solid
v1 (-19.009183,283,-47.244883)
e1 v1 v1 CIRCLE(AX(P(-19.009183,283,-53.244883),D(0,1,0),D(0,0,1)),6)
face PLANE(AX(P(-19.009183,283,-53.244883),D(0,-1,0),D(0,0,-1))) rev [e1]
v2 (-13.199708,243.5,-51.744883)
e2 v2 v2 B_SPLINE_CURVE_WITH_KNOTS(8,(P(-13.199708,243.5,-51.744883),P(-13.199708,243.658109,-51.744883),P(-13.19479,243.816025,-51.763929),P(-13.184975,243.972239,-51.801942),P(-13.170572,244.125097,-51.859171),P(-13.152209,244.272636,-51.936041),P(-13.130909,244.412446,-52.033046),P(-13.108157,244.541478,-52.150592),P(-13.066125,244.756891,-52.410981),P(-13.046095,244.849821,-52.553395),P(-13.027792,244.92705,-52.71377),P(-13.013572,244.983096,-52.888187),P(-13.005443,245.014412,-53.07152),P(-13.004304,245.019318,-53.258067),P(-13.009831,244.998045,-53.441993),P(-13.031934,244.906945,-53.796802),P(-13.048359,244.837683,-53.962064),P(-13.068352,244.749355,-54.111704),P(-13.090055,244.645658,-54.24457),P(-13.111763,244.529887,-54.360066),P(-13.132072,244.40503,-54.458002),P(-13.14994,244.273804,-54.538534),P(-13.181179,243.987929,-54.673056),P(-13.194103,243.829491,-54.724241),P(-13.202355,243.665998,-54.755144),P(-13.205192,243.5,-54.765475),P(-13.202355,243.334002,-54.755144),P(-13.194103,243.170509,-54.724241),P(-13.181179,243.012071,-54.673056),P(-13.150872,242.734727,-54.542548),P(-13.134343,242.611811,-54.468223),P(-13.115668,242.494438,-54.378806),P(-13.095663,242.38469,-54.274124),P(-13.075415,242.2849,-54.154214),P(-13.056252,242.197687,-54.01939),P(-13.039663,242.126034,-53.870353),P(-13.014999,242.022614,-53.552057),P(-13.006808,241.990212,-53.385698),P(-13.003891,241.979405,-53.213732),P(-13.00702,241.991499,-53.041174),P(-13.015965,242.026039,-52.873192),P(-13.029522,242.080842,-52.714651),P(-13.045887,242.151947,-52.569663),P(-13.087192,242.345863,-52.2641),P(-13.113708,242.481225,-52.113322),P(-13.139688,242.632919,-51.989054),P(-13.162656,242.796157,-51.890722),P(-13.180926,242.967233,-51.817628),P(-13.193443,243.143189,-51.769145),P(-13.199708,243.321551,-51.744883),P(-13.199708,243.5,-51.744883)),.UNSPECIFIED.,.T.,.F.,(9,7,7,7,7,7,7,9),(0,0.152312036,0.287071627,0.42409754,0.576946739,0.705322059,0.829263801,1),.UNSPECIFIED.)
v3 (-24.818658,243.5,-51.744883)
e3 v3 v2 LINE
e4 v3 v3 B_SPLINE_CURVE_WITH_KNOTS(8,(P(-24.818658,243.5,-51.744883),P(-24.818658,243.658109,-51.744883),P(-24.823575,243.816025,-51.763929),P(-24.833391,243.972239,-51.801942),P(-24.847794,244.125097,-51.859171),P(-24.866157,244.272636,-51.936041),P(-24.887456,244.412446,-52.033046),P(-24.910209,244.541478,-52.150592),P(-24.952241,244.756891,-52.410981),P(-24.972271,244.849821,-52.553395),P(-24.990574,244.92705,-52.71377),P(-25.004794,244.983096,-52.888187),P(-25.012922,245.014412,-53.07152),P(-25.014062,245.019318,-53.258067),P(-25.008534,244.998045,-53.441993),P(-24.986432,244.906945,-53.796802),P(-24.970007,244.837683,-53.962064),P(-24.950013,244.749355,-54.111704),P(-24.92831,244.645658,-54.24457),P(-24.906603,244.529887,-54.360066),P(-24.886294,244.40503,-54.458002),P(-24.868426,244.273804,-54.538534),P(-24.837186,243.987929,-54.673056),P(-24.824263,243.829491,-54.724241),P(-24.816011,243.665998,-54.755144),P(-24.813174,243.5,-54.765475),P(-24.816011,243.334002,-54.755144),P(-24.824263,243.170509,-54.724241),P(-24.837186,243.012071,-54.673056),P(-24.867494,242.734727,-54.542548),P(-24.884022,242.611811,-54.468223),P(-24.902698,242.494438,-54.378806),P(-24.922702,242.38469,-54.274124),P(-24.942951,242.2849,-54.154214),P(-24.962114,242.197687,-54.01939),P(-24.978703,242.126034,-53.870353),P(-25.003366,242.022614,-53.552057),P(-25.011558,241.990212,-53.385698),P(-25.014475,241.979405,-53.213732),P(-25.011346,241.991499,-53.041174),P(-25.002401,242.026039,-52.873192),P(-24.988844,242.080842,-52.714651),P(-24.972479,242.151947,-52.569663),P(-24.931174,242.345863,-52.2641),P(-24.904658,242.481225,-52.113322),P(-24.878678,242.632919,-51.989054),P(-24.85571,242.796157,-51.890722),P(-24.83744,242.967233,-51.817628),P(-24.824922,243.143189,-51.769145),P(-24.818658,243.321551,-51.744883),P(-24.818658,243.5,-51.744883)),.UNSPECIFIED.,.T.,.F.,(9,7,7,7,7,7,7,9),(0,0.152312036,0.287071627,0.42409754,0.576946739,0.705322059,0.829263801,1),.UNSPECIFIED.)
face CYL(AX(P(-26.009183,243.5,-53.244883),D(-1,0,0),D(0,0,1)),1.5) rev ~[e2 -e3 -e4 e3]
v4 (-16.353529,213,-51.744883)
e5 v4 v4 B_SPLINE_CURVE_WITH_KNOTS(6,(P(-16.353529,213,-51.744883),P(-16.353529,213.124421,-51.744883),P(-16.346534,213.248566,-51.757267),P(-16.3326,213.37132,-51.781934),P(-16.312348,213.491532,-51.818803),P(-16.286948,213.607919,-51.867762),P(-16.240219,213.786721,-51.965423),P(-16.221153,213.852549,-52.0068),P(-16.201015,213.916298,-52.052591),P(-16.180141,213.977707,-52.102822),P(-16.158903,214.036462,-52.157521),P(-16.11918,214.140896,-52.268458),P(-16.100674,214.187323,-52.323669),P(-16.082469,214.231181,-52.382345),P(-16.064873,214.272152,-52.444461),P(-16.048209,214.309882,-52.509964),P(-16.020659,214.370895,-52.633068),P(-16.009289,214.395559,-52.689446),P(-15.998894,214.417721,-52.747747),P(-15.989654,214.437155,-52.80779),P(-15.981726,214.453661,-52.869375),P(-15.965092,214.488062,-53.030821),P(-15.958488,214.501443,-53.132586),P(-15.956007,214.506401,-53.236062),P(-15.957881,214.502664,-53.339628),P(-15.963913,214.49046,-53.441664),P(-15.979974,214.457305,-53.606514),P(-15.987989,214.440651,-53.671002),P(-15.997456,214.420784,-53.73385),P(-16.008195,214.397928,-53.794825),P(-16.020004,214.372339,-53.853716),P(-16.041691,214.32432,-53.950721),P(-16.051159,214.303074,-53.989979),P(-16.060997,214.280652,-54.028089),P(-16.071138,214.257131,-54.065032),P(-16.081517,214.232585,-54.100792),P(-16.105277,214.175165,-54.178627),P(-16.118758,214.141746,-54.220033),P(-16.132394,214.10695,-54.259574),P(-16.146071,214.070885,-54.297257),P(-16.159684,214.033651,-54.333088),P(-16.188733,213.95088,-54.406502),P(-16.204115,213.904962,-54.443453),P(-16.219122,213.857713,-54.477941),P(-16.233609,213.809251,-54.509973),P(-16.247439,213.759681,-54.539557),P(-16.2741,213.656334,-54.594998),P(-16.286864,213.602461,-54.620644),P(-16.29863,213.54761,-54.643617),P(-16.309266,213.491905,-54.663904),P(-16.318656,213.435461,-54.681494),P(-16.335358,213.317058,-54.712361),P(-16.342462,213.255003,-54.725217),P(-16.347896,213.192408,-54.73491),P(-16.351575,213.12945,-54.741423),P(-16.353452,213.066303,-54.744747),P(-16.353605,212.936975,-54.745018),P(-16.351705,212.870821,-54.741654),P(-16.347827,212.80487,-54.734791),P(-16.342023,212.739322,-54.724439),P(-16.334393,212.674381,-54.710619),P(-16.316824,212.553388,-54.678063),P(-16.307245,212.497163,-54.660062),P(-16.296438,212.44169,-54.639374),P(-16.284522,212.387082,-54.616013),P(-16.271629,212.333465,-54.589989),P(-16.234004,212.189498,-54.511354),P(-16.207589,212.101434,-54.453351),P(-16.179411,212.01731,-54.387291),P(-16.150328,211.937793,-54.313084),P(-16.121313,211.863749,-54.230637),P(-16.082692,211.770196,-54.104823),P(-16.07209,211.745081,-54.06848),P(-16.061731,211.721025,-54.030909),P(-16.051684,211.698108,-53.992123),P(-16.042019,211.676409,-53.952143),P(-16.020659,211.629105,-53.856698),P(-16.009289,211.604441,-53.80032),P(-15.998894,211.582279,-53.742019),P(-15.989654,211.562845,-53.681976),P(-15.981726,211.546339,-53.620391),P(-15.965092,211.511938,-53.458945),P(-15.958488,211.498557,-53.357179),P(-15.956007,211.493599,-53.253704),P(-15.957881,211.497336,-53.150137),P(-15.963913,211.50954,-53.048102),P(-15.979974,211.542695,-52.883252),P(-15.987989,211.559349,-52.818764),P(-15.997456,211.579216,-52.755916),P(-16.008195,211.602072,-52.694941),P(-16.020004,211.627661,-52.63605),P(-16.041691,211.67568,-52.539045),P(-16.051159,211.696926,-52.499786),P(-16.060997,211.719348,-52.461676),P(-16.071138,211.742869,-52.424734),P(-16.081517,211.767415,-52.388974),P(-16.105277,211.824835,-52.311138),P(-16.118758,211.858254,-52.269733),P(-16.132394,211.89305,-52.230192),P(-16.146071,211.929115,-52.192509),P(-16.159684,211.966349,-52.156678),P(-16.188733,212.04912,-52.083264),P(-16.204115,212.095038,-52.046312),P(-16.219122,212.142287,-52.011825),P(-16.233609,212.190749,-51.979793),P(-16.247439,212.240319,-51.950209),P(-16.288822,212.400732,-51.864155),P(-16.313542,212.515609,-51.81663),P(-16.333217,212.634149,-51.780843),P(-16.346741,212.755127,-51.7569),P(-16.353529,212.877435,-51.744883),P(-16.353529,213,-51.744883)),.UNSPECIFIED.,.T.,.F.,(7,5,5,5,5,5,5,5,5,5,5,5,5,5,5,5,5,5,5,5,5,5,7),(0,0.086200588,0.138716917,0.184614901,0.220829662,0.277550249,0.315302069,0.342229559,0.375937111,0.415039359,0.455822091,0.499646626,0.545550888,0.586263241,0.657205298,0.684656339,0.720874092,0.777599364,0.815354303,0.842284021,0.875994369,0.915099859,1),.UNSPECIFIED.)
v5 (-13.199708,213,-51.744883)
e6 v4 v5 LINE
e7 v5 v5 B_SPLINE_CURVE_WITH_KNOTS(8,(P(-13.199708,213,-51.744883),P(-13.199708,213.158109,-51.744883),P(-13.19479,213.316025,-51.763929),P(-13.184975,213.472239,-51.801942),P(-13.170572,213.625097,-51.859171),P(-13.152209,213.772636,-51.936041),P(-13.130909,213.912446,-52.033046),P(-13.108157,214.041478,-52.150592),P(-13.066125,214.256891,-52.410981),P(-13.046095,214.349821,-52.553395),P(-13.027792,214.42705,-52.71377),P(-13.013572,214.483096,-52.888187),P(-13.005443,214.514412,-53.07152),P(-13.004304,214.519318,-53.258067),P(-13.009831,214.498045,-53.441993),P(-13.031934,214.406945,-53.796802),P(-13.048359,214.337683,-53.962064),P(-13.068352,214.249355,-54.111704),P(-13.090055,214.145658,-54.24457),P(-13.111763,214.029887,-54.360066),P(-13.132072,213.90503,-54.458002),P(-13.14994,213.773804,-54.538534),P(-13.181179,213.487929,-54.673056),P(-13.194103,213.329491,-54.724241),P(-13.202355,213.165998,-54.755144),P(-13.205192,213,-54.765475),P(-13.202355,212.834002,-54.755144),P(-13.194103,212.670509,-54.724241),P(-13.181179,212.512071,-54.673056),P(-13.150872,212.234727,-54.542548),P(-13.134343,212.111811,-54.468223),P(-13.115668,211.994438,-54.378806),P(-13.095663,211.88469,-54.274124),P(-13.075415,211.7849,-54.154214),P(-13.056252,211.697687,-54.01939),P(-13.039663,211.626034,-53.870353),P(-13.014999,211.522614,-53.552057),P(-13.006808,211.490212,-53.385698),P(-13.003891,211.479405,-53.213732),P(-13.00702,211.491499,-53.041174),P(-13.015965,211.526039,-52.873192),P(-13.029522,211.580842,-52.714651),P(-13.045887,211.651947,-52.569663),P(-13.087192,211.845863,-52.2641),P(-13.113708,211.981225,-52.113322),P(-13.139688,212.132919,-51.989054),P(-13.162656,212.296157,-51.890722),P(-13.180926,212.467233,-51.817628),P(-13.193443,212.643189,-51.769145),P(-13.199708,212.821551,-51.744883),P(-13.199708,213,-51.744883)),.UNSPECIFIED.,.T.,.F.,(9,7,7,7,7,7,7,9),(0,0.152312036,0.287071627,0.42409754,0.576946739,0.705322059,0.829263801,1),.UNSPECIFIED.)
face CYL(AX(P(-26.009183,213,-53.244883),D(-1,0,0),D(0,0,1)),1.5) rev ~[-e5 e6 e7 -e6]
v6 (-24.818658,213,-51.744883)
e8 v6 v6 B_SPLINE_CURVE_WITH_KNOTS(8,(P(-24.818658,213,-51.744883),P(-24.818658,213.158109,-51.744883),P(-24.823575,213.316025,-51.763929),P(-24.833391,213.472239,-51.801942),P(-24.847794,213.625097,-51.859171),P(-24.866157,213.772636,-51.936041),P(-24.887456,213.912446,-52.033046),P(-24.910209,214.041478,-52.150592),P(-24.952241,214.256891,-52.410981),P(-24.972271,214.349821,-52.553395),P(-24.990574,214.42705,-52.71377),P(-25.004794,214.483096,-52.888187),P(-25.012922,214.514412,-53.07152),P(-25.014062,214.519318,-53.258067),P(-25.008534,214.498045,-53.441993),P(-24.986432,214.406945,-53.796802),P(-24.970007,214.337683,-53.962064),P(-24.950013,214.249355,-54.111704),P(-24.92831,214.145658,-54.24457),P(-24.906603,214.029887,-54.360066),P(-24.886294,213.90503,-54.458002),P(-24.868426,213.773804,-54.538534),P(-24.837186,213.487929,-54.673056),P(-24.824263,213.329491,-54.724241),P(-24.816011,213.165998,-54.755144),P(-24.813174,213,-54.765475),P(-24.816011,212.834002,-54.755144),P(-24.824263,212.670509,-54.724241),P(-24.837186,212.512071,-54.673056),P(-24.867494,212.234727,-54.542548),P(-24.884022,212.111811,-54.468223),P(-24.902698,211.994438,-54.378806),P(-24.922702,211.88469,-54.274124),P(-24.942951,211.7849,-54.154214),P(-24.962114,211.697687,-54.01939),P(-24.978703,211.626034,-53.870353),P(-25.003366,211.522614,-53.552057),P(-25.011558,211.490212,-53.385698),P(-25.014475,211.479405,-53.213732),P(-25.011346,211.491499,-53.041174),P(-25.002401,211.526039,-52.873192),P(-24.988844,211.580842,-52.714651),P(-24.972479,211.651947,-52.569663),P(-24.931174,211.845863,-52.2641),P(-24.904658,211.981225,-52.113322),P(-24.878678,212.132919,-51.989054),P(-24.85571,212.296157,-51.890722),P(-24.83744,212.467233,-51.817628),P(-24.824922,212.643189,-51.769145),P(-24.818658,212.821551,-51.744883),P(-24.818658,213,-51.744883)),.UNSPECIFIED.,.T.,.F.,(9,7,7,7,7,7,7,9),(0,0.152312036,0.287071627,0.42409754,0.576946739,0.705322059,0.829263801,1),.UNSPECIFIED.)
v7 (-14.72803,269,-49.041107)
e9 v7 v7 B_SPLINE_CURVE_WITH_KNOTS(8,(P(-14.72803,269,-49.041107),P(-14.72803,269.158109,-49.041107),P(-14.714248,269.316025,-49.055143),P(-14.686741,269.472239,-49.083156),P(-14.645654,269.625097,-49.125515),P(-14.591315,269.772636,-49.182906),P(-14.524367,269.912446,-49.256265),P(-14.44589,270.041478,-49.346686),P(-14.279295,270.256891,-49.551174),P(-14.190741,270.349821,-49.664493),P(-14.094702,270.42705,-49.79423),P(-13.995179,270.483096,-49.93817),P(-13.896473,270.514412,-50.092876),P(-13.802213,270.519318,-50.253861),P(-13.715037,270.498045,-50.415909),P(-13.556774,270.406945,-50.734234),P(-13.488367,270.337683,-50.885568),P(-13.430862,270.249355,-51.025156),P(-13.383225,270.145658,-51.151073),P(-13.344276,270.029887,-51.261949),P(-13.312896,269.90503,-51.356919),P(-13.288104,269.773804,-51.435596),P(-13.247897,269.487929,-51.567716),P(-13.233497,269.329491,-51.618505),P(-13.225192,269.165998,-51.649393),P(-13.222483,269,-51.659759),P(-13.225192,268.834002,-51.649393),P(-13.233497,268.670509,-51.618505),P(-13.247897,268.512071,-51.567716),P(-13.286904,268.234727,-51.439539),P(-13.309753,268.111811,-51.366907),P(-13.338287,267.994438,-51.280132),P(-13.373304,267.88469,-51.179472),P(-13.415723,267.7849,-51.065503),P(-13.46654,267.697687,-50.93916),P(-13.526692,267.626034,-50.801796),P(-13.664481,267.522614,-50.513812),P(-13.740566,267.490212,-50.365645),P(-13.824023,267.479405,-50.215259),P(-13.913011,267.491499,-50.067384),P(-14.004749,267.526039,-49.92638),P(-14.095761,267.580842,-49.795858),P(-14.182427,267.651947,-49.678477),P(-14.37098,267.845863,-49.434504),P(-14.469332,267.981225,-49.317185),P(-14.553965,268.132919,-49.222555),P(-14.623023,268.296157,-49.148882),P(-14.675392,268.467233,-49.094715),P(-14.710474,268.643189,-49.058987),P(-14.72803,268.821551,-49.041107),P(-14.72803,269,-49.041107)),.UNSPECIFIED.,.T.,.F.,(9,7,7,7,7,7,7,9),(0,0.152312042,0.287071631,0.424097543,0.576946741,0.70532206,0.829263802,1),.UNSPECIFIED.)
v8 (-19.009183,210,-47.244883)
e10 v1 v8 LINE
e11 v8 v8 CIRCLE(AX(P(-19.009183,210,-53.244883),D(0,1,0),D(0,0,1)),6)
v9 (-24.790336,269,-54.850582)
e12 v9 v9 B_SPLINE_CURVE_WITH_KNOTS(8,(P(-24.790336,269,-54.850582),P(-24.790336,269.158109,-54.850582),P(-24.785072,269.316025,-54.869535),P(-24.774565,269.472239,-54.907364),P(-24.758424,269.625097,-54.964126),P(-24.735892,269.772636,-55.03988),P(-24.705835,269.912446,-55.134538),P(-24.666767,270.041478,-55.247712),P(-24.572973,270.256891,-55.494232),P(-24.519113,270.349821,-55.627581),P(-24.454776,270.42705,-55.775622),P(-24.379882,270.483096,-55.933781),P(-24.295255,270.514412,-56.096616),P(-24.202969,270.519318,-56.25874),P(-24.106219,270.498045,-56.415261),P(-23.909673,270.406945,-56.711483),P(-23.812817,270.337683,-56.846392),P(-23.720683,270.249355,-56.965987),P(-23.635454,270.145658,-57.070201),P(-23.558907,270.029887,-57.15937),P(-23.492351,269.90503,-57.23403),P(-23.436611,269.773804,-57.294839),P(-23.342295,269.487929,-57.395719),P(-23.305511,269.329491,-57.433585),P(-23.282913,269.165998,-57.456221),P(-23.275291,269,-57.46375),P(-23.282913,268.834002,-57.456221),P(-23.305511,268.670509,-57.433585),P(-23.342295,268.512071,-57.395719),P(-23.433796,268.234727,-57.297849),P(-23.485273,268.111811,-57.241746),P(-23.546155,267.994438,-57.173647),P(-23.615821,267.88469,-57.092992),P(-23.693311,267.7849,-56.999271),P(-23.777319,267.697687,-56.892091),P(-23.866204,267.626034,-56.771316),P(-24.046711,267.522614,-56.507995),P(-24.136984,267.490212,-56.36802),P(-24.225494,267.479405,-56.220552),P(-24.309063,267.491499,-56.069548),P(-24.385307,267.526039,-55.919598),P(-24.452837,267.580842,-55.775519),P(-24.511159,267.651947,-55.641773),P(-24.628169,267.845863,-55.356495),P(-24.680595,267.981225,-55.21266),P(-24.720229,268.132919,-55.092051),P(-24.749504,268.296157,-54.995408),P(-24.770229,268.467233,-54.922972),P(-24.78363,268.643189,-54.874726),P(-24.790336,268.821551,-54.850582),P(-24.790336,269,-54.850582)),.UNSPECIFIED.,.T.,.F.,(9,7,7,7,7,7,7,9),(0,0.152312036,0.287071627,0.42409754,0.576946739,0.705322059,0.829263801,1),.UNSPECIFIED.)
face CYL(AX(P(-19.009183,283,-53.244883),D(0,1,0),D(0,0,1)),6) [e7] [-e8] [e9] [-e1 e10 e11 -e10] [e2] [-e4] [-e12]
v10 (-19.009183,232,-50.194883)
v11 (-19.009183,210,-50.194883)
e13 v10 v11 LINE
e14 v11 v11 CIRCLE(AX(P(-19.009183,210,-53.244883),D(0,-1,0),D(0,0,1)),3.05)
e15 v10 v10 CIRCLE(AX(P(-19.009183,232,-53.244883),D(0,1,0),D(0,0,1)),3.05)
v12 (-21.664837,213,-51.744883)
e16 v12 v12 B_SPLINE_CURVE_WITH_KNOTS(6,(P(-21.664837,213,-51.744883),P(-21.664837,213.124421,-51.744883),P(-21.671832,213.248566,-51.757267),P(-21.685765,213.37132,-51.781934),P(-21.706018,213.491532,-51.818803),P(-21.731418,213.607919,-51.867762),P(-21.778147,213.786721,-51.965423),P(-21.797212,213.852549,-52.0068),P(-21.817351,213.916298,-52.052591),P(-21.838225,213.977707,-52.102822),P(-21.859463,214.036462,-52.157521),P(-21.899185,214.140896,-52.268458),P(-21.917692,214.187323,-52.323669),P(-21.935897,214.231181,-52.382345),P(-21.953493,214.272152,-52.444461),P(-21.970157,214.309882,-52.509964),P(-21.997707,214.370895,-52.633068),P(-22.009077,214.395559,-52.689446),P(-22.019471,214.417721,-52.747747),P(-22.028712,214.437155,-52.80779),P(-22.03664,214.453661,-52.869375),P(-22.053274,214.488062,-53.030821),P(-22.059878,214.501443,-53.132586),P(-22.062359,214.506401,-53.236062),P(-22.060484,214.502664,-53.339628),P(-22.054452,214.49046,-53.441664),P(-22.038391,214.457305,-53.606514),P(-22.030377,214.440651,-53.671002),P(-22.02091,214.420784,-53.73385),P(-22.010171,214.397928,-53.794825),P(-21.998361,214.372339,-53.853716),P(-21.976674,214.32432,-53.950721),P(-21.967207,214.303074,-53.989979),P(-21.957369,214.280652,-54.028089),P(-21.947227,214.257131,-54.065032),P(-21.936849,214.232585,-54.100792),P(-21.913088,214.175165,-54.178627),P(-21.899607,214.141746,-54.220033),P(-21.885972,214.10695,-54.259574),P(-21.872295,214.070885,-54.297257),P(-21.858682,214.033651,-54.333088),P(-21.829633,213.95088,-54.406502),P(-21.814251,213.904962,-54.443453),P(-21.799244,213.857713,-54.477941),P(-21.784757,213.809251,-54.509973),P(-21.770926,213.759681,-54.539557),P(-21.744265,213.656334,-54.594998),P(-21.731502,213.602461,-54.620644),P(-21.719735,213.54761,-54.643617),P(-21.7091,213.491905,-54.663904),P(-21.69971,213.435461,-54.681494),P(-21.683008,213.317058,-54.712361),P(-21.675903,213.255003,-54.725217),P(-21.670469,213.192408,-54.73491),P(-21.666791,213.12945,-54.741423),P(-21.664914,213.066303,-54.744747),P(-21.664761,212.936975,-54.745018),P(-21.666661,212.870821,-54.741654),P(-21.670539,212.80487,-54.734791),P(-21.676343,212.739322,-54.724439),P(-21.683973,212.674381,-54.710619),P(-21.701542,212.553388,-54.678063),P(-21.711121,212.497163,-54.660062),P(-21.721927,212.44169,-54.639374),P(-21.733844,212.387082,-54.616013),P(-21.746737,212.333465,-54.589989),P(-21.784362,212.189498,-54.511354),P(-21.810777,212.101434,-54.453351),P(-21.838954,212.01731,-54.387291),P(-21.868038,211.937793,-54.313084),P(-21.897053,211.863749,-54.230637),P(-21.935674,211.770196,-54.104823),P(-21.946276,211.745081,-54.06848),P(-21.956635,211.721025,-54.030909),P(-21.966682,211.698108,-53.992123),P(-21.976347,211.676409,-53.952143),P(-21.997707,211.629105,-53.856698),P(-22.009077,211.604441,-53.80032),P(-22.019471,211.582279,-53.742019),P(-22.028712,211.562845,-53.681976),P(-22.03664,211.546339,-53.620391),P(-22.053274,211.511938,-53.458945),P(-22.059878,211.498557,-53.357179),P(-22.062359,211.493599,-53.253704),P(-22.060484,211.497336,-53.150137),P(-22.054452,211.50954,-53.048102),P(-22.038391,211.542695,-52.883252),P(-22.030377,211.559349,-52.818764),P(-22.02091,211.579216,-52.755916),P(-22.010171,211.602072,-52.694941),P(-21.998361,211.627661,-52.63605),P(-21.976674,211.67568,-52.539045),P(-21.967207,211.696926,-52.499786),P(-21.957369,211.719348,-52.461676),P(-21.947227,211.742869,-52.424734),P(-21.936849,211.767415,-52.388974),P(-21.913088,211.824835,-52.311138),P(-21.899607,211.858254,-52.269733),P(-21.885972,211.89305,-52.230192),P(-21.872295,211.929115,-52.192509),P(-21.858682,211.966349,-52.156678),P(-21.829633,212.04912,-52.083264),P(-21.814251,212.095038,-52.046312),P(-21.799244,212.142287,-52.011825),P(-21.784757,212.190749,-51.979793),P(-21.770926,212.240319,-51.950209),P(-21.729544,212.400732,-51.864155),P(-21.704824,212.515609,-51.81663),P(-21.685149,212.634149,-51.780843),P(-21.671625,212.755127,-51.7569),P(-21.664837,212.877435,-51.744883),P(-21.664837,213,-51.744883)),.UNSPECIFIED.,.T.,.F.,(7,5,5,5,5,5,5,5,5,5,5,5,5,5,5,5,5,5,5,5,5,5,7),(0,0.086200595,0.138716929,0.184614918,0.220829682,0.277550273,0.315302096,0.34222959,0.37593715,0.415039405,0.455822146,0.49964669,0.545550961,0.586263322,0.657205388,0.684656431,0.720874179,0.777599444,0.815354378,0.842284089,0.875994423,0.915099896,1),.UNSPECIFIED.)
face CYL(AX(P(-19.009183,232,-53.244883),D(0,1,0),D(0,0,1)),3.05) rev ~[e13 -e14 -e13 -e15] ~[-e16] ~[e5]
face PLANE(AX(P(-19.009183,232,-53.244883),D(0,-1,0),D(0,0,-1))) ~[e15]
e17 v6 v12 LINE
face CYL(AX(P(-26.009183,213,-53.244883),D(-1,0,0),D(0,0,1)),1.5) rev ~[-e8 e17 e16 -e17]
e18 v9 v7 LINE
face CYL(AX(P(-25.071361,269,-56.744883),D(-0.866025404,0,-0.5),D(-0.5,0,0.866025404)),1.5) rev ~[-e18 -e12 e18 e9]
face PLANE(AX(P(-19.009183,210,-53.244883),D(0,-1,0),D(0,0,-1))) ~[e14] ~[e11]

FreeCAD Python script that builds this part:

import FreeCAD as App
import Part
import Sketcher

doc = App.newDocument("Part")
body = doc.addObject("PartDesign::Body", "Body")

sketch1 = doc.addObject("Sketcher::SketchObject", "Sketch")
body.addObject(sketch1)
sketch1.AttachmentSupport = (doc.XZ_Plane, [""])
sketch1.MapMode = "FlatFace"
sketch1.AttachmentOffset = App.Placement(App.Vector(0, 0, 283), App.Rotation())
sketch1.addGeometry(Part.Circle(App.Vector(-19.009183, -53.244883, 0), App.Vector(0, 0, 1), 6), False)
sketch1.addConstraint(Sketcher.Constraint("Diameter", 0, 12.0))
sketch1.addConstraint(Sketcher.Constraint("DistanceX", 0, 3, -1, 1, 19.009183))
sketch1.addConstraint(Sketcher.Constraint("DistanceY", 0, 3, -1, 1, 53.244883))
pad1 = doc.addObject("PartDesign::Pad", "Pad")
body.addObject(pad1)
pad1.Profile = sketch1
pad1.Length = 73
pad1.Reversed = True

sketch2 = doc.addObject("Sketcher::SketchObject", "Sketch001")
body.addObject(sketch2)
sketch2.AttachmentSupport = (doc.XZ_Plane, [""])
sketch2.MapMode = "FlatFace"
sketch2.AttachmentOffset = App.Placement(App.Vector(0, 0, 232), App.Rotation())
sketch2.addGeometry(Part.Circle(App.Vector(-19.009183, -53.244883, 0), App.Vector(0, 0, 1), 3.05), False)
sketch2.addConstraint(Sketcher.Constraint("Diameter", 0, 6.1))
sketch2.addConstraint(Sketcher.Constraint("DistanceX", 0, 3, -1, 1, 19.009183))
sketch2.addConstraint(Sketcher.Constraint("DistanceY", 0, 3, -1, 1, 53.244883))
pocket1 = doc.addObject("PartDesign::Pocket", "Pocket")
body.addObject(pocket1)
pocket1.Profile = sketch2
pocket1.Length = 22.1

sketch3 = doc.addObject("Sketcher::SketchObject", "Sketch002")
body.addObject(sketch3)
sketch3.AttachmentSupport = (doc.YZ_Plane, [""])
sketch3.MapMode = "FlatFace"
sketch3.AttachmentOffset = App.Placement(App.Vector(0, 0, -26.009183), App.Rotation())
sketch3.addGeometry(Part.Circle(App.Vector(-213, -53.244883, 0), App.Vector(0, 0, 1), 1.5), False)
sketch3.addConstraint(Sketcher.Constraint("Diameter", 0, 3.0))
sketch3.addConstraint(Sketcher.Constraint("DistanceX", 0, 3, -1, 1, 213.0))
sketch3.addConstraint(Sketcher.Constraint("DistanceY", 0, 3, -1, 1, 53.244883))
pocket2 = doc.addObject("PartDesign::Pocket", "Pocket001")
body.addObject(pocket2)
pocket2.Profile = sketch3
pocket2.Length = 14
pocket2.Reversed = True

sketch4 = doc.addObject("Sketcher::SketchObject", "Sketch003")
body.addObject(sketch4)
sketch4.AttachmentSupport = (doc.YZ_Plane, [""])
sketch4.MapMode = "FlatFace"
sketch4.AttachmentOffset = App.Placement(App.Vector(0, 0, -26.009183), App.Rotation())
sketch4.addGeometry(Part.Circle(App.Vector(-243.5, -53.244883, 0), App.Vector(0, 0, 1), 1.5), False)
sketch4.addConstraint(Sketcher.Constraint("Diameter", 0, 3.0))
sketch4.addConstraint(Sketcher.Constraint("DistanceX", 0, 3, -1, 1, 243.5))
sketch4.addConstraint(Sketcher.Constraint("DistanceY", 0, 3, -1, 1, 53.244883))
pocket3 = doc.addObject("PartDesign::Pocket", "Pocket002")
body.addObject(pocket3)
pocket3.Profile = sketch4
pocket3.Length = 14
pocket3.Reversed = True

sketch5 = doc.addObject("Sketcher::SketchObject", "Sketch004")
body.addObject(sketch5)
sketch5.Placement = App.Placement(App.Vector(-43.374776, 0, -25.042438), App.Rotation(App.Vector(0.5, 0, -0.866025404), App.Vector(0, 1, 0), App.Vector(0.866025404, 0, 0.5), "ZXY"))
sketch5.addGeometry(Part.Circle(App.Vector(36.60683, -269, 0), App.Vector(0, 0, 1), 1.5), False)
sketch5.addConstraint(Sketcher.Constraint("Diameter", 0, 3.0))
sketch5.addConstraint(Sketcher.Constraint("DistanceY", 0, 3, -1, 1, 269.0))
sketch5.addConstraint(Sketcher.Constraint("DistanceX", -1, 1, 0, 3, 36.60683))
pocket4 = doc.addObject("PartDesign::Pocket", "Pocket003")
body.addObject(pocket4)
pocket4.Profile = sketch5
pocket4.Length = 14
pocket4.Reversed = True
body2 = doc.addObject("PartDesign::Body", "Body001")
doc.recompute()

mirroring = doc.addObject("Part::Mirroring", "Mirroring")
mirroring.Source = body
mirroring.Base = App.Vector(0, 0, 0)
mirroring.Normal = App.Vector(0, -1, 0)
body2.BaseFeature = mirroring
doc.recompute()
body.Visibility = False
mirroring.Visibility = False

doc.recompute()
